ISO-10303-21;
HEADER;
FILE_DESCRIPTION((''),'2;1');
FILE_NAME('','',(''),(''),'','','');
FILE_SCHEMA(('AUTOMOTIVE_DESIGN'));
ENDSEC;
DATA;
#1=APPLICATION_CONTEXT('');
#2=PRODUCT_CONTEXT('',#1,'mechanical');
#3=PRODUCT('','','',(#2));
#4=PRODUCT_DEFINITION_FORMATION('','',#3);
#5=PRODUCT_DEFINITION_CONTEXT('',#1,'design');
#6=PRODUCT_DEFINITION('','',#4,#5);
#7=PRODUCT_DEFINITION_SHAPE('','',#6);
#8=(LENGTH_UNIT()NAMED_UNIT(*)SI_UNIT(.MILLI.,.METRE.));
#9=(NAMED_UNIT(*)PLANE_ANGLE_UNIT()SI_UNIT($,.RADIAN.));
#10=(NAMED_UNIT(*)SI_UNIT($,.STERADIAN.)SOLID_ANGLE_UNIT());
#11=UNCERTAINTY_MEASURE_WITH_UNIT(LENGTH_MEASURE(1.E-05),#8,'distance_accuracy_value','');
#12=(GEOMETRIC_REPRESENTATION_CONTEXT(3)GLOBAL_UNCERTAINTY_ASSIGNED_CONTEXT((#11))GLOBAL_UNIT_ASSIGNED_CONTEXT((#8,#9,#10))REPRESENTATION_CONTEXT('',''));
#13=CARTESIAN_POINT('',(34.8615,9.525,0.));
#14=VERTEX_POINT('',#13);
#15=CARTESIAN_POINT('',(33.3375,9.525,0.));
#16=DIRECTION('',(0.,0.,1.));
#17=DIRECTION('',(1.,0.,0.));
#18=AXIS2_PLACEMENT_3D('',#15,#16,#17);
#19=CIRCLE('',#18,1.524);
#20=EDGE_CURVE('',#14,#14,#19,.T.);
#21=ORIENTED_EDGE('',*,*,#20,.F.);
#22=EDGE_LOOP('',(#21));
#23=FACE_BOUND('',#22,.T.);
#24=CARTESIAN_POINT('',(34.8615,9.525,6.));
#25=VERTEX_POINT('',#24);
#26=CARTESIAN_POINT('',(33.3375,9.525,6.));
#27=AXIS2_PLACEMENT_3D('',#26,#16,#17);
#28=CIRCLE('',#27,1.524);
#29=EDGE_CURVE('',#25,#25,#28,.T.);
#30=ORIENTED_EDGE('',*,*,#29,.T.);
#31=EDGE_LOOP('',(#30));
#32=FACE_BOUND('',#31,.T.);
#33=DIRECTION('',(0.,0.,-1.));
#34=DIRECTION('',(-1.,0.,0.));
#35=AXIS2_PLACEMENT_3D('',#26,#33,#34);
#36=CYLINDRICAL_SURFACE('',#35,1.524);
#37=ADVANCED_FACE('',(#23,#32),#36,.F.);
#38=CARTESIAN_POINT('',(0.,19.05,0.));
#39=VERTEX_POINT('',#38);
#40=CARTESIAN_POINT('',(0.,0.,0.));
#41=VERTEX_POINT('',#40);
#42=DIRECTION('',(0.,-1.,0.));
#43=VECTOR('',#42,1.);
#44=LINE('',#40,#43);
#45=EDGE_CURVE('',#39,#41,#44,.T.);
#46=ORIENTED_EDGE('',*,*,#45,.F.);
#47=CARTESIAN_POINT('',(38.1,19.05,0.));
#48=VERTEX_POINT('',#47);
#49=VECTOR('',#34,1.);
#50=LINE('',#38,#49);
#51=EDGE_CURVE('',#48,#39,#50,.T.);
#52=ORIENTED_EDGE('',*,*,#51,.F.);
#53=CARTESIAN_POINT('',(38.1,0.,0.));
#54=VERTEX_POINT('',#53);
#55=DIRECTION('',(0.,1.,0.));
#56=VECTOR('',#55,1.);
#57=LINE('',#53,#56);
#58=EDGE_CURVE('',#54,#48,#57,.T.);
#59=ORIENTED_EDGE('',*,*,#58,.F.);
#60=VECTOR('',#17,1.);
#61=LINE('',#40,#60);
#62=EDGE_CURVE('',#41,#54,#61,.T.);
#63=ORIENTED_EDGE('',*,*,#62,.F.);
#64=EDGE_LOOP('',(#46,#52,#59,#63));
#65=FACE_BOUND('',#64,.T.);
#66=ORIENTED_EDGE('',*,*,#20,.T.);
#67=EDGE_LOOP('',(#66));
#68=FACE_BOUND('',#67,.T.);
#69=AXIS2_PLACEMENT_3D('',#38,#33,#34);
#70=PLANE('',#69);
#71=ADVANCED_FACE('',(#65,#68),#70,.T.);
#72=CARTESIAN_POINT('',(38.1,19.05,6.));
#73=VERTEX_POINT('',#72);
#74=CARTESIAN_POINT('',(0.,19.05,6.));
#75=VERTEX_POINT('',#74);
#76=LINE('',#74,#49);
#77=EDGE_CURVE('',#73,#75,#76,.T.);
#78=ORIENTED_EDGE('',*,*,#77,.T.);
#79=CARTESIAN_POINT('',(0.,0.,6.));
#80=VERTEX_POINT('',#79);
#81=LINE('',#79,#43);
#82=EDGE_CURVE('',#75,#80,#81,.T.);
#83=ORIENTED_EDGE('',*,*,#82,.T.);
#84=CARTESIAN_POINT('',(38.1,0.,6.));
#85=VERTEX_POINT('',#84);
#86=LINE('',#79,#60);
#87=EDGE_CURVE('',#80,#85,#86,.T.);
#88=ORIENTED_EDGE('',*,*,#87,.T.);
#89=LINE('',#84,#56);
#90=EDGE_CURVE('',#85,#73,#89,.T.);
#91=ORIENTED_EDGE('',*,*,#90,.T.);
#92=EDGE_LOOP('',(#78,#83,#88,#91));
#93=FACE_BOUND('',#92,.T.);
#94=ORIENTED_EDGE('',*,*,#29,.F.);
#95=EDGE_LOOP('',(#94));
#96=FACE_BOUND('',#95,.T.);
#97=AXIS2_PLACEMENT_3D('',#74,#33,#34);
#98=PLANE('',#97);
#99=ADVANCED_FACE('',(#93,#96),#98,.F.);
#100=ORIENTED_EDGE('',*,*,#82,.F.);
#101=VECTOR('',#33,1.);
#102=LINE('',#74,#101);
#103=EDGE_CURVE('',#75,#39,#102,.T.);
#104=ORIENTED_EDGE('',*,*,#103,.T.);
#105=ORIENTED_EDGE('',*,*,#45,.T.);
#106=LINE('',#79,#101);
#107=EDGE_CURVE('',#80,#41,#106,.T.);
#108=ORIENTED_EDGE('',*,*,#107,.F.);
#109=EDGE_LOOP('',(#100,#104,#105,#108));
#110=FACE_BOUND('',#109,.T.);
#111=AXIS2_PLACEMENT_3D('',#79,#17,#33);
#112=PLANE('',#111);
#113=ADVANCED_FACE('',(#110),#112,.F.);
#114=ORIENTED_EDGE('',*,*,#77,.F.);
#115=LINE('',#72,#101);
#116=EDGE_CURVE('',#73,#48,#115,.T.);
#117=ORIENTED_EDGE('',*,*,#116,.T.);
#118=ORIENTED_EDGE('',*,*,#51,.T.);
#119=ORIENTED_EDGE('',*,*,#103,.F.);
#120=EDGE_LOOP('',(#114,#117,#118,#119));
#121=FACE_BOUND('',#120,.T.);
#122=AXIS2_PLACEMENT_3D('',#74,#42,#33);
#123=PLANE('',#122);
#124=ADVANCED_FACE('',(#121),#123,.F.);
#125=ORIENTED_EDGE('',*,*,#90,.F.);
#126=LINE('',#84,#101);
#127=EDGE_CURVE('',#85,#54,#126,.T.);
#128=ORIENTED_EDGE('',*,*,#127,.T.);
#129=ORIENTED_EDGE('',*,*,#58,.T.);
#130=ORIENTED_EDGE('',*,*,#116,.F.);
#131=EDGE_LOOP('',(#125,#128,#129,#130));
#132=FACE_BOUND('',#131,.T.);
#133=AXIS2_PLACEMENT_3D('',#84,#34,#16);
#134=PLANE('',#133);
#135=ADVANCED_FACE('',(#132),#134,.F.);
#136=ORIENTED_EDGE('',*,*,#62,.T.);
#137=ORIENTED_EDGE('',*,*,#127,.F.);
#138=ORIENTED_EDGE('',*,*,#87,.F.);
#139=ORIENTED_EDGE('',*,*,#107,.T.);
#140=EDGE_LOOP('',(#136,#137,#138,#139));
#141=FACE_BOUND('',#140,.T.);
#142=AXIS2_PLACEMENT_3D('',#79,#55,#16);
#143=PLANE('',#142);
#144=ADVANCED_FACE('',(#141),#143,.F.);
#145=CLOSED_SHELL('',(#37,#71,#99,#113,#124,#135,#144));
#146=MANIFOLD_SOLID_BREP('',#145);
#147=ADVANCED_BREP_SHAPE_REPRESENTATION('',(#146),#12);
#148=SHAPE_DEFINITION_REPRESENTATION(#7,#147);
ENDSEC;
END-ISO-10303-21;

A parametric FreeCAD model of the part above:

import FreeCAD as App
import Part
import Sketcher
from FreeCAD import Vector
Q = App.Units.Quantity


def add_polygon(sketch, points):
    """Adds a closed chain of lines whose ends are joined by coincident constraints."""
    first, n = sketch.GeometryCount, len(points)
    for a, b in zip(points, points[1:] + points[:1]):
        sketch.addGeometry(Part.LineSegment(App.Vector(*a, 0), App.Vector(*b, 0)), False)
    for i in range(n):
        sketch.addConstraint(Sketcher.Constraint("Coincident", first + i, 2, first + (i + 1) % n, 1))

doc = App.newDocument("Part")
body = doc.addObject("PartDesign::Body", "Body")

# Sketch on XY plane
sketch1 = body.newObject("Sketcher::SketchObject", "Sketch")
sketch1.AttachmentSupport = (doc.getObject("XY_Plane"), [""])
sketch1.MapMode = "FlatFace"
add_polygon(sketch1, [(0, 19.1), (0, 0), (38.1, 0), (38.1, 19.1)])  # lines 0-3
sketch1.addGeometry(Part.Circle(Vector(33.3, 9.5, 0), Vector(0, 0, 1), 1.5), False)  # 4
sketch1.addConstraint(Sketcher.Constraint("Vertical", 0))
sketch1.addConstraint(Sketcher.Constraint("Horizontal", 1))
sketch1.addConstraint(Sketcher.Constraint("Vertical", 2))
sketch1.addConstraint(Sketcher.Constraint("Horizontal", 3))
sketch1.addConstraint(Sketcher.Constraint("Coincident", 0, 2, -1, 1))
sketch1.addConstraint(Sketcher.Constraint("Diameter", 4, Q("0.12 in")))
sketch1.addConstraint(Sketcher.Constraint("DistanceX", 1, 1, 1, 2, Q("1.5 in")))
sketch1.addConstraint(Sketcher.Constraint("DistanceY", 0, 2, 0, 1, Q("0.75 in")))
sketch1.addConstraint(Sketcher.Constraint("DistanceX", -1, 1, 4, 3, Q("1.3125 in")))
sketch1.addConstraint(Sketcher.Constraint("DistanceY", -1, 1, 4, 3, Q("0.375 in")))
pad1 = body.newObject("PartDesign::Pad", "Pad")
pad1.Profile = sketch1
pad1.Length = 6

doc.recompute()
